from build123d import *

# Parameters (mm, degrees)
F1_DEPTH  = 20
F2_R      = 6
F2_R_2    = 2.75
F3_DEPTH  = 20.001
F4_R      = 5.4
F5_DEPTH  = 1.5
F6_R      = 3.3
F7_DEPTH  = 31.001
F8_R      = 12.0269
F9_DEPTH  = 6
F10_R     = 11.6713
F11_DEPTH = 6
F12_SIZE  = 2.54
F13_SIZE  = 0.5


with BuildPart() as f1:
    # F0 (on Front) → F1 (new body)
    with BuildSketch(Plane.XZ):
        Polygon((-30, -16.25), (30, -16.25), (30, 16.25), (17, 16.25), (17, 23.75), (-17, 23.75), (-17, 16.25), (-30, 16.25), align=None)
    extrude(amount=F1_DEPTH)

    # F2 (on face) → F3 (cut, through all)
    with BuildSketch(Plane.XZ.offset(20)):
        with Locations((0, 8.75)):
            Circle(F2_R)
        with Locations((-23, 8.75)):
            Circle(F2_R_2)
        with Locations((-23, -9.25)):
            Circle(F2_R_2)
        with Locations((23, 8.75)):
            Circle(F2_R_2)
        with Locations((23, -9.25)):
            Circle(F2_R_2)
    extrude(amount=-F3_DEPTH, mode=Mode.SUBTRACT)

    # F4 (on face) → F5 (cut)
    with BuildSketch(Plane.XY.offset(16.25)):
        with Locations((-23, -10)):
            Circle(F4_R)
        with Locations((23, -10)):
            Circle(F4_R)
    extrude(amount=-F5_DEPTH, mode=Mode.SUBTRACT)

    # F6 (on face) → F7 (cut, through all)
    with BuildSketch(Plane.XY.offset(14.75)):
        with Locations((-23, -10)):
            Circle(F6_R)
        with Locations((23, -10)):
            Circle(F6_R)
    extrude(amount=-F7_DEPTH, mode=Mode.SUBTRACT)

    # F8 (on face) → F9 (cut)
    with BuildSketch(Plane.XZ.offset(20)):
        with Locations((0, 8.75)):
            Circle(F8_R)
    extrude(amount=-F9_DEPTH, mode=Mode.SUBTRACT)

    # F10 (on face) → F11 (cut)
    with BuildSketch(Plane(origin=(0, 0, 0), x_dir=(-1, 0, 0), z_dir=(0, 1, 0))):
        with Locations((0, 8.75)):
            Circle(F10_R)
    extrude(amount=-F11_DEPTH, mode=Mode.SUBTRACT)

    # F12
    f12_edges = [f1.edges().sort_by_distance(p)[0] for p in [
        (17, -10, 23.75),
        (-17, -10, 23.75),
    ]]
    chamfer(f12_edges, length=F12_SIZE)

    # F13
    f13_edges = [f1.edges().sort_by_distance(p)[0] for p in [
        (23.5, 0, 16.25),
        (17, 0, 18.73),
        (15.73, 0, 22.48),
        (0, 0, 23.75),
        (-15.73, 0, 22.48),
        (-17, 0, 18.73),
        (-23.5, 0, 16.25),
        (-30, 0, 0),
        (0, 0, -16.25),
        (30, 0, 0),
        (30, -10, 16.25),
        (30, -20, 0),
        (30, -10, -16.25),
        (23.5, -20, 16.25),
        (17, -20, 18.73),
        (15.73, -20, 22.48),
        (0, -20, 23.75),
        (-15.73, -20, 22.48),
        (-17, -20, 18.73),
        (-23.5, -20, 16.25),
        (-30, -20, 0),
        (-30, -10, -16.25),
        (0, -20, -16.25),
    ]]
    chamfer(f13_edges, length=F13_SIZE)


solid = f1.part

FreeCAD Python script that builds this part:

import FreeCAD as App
import Part
import Sketcher
Q = App.Units.Quantity


def edges_at(feature, points):
    """Names of the edges that pass closest to the given points."""
    edges = feature.Shape.Edges
    near = lambda p: min(range(len(edges)), key=lambda i: edges[i].distToShape(Part.Vertex(*p))[0])
    return sorted({f"Edge{near(p) + 1}" for p in points})


def add_polygon(sketch, points):
    """Adds a closed chain of lines whose ends are joined by coincident constraints."""
    first, n = sketch.GeometryCount, len(points)
    for a, b in zip(points, points[1:] + points[:1]):
        sketch.addGeometry(Part.LineSegment(App.Vector(*a, 0), App.Vector(*b, 0)), False)
    for i in range(n):
        sketch.addConstraint(Sketcher.Constraint("Coincident", first + i, 2, first + (i + 1) % n, 1))

doc = App.newDocument("Part")
body = doc.addObject("PartDesign::Body", "Body")

sketch1 = doc.addObject("Sketcher::SketchObject", "Sketch")
body.addObject(sketch1)
sketch1.AttachmentSupport = (doc.XZ_Plane, [""])
sketch1.MapMode = "FlatFace"
add_polygon(sketch1, [(-30, -16), (30, -16), (30, 16), (17, 16), (17, 24), (-17, 24), (-17, 16), (-30, 16)])
sketch1.addConstraint([
    Sketcher.Constraint("Horizontal", 0),
    Sketcher.Constraint("Vertical", 1),
    Sketcher.Constraint("Horizontal", 2),
    Sketcher.Constraint("Vertical", 3),
    Sketcher.Constraint("Horizontal", 4),
    Sketcher.Constraint("Vertical", 5),
    Sketcher.Constraint("Horizontal", 6),
    Sketcher.Constraint("Vertical", 7),
    Sketcher.Constraint("Symmetric", 0, 2, 6, 2, -1, 1),
    Sketcher.Constraint("Symmetric", 2, 2, 5, 2, -2),
    Sketcher.Constraint("DistanceX", 0, 1, 0, 2, Q("60 mm")),
    Sketcher.Constraint("DistanceX", 2, 2, 2, 1, Q("13 mm")),
    Sketcher.Constraint("DistanceY", 1, 1, 1, 2, Q("32.5 mm")),
    Sketcher.Constraint("DistanceY", 3, 1, 3, 2, Q("7.5 mm")),
])
pad1 = doc.addObject("PartDesign::Pad", "Pad")
body.addObject(pad1)
pad1.Profile = sketch1
pad1.Length = 20

sketch2 = doc.addObject("Sketcher::SketchObject", "Sketch001")
body.addObject(sketch2)
sketch2.AttachmentSupport = (doc.XZ_Plane, [""])
sketch2.MapMode = "FlatFace"
sketch2.AttachmentOffset = App.Placement(App.Vector(0, 0, 20), App.Rotation())
sketch2.addGeometry([
    Part.Circle(App.Vector(0, 8.8, 0), App.Vector(0, 0, 1), 6),
    Part.Circle(App.Vector(-23, 8.8, 0), App.Vector(0, 0, 1), 2.8),
    Part.Circle(App.Vector(-23, -9.2, 0), App.Vector(0, 0, 1), 2.8),
    Part.Circle(App.Vector(23, 8.8, 0), App.Vector(0, 0, 1), 2.8),
    Part.Circle(App.Vector(23, -9.2, 0), App.Vector(0, 0, 1), 2.8),
], False)
sketch2.addConstraint([
    Sketcher.Constraint("Equal", 1, 2),
    Sketcher.Constraint("Equal", 2, 3),
    Sketcher.Constraint("Equal", 3, 4),
    Sketcher.Constraint("Symmetric", 1, 3, 3, 3, -2),
    Sketcher.Constraint("Symmetric", 2, 3, 4, 3, -2),
    Sketcher.Constraint("PointOnObject", 0, 3, -2),
    Sketcher.Constraint("Horizontal", 0, 3, 1, 3),
    Sketcher.Constraint("Vertical", 1, 3, 2, 3),
    Sketcher.Constraint("Diameter", 0, Q("12 mm")),
    Sketcher.Constraint("Diameter", 1, Q("5.5 mm")),
    Sketcher.Constraint("DistanceX", 1, 3, -1, 1, Q("23 mm")),
    Sketcher.Constraint("DistanceY", 2, 3, 1, 3, Q("18 mm")),
    Sketcher.Constraint("DistanceY", -1, 1, 0, 3, Q("8.75 mm")),
])
pocket1 = doc.addObject("PartDesign::Pocket", "Pocket")
body.addObject(pocket1)
pocket1.Profile = sketch2
pocket1.Type = "ThroughAll"

sketch3 = doc.addObject("Sketcher::SketchObject", "Sketch002")
body.addObject(sketch3)
sketch3.AttachmentSupport = (doc.XY_Plane, [""])
sketch3.MapMode = "FlatFace"
sketch3.AttachmentOffset = App.Placement(App.Vector(0, 0, 16.25), App.Rotation())
sketch3.addGeometry([
    Part.Circle(App.Vector(-23, -10, 0), App.Vector(0, 0, 1), 5),
    Part.Circle(App.Vector(23, -10, 0), App.Vector(0, 0, 1), 5),
], False)
sketch3.addConstraint([
    Sketcher.Constraint("Equal", 0, 1),
    Sketcher.Constraint("Symmetric", 0, 3, 1, 3, -2),
    Sketcher.Constraint("Diameter", 0, Q("10.8 mm")),
    Sketcher.Constraint("DistanceX", 0, 3, -1, 1, Q("23 mm")),
    Sketcher.Constraint("DistanceY", 0, 3, -1, 1, Q("10 mm")),
])
pocket2 = doc.addObject("PartDesign::Pocket", "Pocket001")
body.addObject(pocket2)
pocket2.Profile = sketch3
pocket2.Length = 1.5

sketch4 = doc.addObject("Sketcher::SketchObject", "Sketch003")
body.addObject(sketch4)
sketch4.AttachmentSupport = (doc.XY_Plane, [""])
sketch4.MapMode = "FlatFace"
sketch4.AttachmentOffset = App.Placement(App.Vector(0, 0, 14.75), App.Rotation())
sketch4.addGeometry([
    Part.Circle(App.Vector(-23, -10, 0), App.Vector(0, 0, 1), 3.3),
    Part.Circle(App.Vector(23, -10, 0), App.Vector(0, 0, 1), 3.3),
], False)
sketch4.addConstraint([
    Sketcher.Constraint("Equal", 0, 1),
    Sketcher.Constraint("Symmetric", 0, 3, 1, 3, -2),
    Sketcher.Constraint("Diameter", 0, Q("6.6 mm")),
    Sketcher.Constraint("DistanceX", 0, 3, -1, 1, Q("23 mm")),
    Sketcher.Constraint("DistanceY", 0, 3, -1, 1, Q("10 mm")),
])
pocket3 = doc.addObject("PartDesign::Pocket", "Pocket002")
body.addObject(pocket3)
pocket3.Profile = sketch4
pocket3.Type = "ThroughAll"

sketch5 = doc.addObject("Sketcher::SketchObject", "Sketch004")
body.addObject(sketch5)
sketch5.AttachmentSupport = (doc.XZ_Plane, [""])
sketch5.MapMode = "FlatFace"
sketch5.AttachmentOffset = App.Placement(App.Vector(0, 0, 20), App.Rotation())
sketch5.addGeometry(Part.Circle(App.Vector(0, 9, 0), App.Vector(0, 0, 1), 12), False)
sketch5.addConstraint([
    Sketcher.Constraint("PointOnObject", 0, 3, -2),
    Sketcher.Constraint("Diameter", 0, Q("24.0538 mm")),
    Sketcher.Constraint("DistanceY", -1, 1, 0, 3, Q("8.75 mm")),
])
pocket4 = doc.addObject("PartDesign::Pocket", "Pocket003")
body.addObject(pocket4)
pocket4.Profile = sketch5
pocket4.Length = 6

sketch6 = doc.addObject("Sketcher::SketchObject", "Sketch005")
body.addObject(sketch6)
sketch6.AttachmentSupport = (doc.XZ_Plane, [""])
sketch6.MapMode = "FlatFace"
sketch6.addGeometry(Part.Circle(App.Vector(0, 9, 0), App.Vector(0, 0, 1), 12), False)
sketch6.addConstraint([
    Sketcher.Constraint("PointOnObject", 0, 3, -2),
    Sketcher.Constraint("Diameter", 0, Q("23.3426 mm")),
    Sketcher.Constraint("DistanceY", -1, 1, 0, 3, Q("8.75 mm")),
])
pocket5 = doc.addObject("PartDesign::Pocket", "Pocket004")
body.addObject(pocket5)
pocket5.Profile = sketch6
pocket5.Length = 6
pocket5.Reversed = True
doc.recompute()

chamfer = doc.addObject("PartDesign::Chamfer", "Chamfer")
body.addObject(chamfer)
chamfer.Base = (pocket5, edges_at(pocket5, [(17, -10, 23.75), (-17, -10, 23.75)]))
chamfer.Size = 2.54
doc.recompute()

chamfer2 = doc.addObject("PartDesign::Chamfer", "Chamfer001")
body.addObject(chamfer2)
chamfer2.Base = (chamfer, edges_at(chamfer, [
    (23.5, 0, 16.25),
    (17, 0, 18.73),
    (15.73, 0, 22.48),
    (0, 0, 23.75),
    (-15.73, 0, 22.48),
    (-17, 0, 18.73),
    (-23.5, 0, 16.25),
    (-30, 0, 0),
    (0, 0, -16.25),
    (30, 0, 0),
    (30, -10, 16.25),
    (30, -20, 0),
    (30, -10, -16.25),
    (23.5, -20, 16.25),
    (17, -20, 18.73),
    (15.73, -20, 22.48),
    (0, -20, 23.75),
    (-15.73, -20, 22.48),
    (-17, -20, 18.73),
    (-23.5, -20, 16.25),
    (-30, -20, 0),
    (-30, -10, -16.25),
    (0, -20, -16.25),
]))
chamfer2.Size = 0.5

doc.recompute()
